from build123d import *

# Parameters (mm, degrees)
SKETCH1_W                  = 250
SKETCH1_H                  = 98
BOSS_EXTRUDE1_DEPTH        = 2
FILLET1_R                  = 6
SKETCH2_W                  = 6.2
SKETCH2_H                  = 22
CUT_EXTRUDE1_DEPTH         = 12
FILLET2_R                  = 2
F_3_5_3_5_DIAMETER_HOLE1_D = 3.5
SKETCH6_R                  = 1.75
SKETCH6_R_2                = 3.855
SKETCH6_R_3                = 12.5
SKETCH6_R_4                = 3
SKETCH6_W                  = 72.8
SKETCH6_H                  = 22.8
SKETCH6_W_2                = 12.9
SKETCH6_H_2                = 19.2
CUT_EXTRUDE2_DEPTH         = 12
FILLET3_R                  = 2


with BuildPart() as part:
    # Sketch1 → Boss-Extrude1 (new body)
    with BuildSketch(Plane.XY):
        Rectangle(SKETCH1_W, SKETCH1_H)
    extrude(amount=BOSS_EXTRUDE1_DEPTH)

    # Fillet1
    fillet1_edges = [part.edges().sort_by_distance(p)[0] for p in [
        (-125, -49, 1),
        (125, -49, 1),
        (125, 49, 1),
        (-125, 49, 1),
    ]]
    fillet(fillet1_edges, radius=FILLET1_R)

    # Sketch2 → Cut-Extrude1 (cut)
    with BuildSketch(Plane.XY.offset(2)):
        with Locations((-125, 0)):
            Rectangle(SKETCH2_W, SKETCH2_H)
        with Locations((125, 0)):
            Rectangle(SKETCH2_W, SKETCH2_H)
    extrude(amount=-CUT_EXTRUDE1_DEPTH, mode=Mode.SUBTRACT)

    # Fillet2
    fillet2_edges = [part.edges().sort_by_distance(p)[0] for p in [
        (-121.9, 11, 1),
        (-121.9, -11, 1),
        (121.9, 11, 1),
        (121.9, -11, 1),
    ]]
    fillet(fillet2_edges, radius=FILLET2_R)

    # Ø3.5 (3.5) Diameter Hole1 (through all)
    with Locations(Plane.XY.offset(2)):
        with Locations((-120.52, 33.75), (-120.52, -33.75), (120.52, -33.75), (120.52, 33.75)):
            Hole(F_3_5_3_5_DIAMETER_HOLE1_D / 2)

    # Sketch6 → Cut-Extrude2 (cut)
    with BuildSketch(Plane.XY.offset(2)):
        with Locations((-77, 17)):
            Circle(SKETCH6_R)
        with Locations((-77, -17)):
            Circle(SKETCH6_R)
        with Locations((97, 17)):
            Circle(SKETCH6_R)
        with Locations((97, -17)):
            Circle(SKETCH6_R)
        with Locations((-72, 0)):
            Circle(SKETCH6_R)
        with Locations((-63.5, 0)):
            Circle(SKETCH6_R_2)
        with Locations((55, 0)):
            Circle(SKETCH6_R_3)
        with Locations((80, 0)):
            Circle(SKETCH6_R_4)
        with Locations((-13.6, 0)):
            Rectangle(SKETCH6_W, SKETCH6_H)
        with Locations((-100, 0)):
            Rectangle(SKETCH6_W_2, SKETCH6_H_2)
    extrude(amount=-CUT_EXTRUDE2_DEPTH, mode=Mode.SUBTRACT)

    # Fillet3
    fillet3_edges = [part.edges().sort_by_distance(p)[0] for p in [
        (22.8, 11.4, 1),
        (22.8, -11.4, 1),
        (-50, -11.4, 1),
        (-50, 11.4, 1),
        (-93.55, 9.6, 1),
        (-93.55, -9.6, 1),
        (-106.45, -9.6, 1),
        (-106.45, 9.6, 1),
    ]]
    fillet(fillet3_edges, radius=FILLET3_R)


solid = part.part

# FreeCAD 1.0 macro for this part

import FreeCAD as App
import Part
import Sketcher


def edges_at(feature, points):
    """Names of the edges that pass closest to the given points."""
    edges = feature.Shape.Edges
    near = lambda p: min(range(len(edges)), key=lambda i: edges[i].distToShape(Part.Vertex(*p))[0])
    return sorted({f"Edge{near(p) + 1}" for p in points})

doc = App.newDocument("Part")
params = doc.addObject("Spreadsheet::Sheet", "Params")
for row, (alias, value) in enumerate([
    ("sketch1_width", "250 mm"),
    ("sketch1_height", "98 mm"),
    ("pad1_length", "2 mm"),
    ("fillet_radius", "6 mm"),
    ("sketch2_height", "22 mm"),
    ("sketch2_width", "6.2 mm"),
    ("pocket1_length", "12 mm"),
    ("fillet2_radius", "2 mm"),
    ("sketch3_diameter", "3.5 mm"),
    ("hole_diameter", "3.5 mm"),
    ("sketch4_diameter", "25 mm"),
    ("sketch4_diameter2", "6 mm"),
    ("sketch4_diameter3", "3.5 mm"),
    ("sketch4_diameter4", "7.71 mm"),
    ("sketch4_width", "72.8 mm"),
    ("pocket2_length", "12 mm"),
    ("fillet3_radius", "2 mm"),
], start=1):
    params.set(f"A{row}", alias)
    params.set(f"B{row}", "=" + value)
    params.setAlias(f"B{row}", alias)

body = doc.addObject("PartDesign::Body", "Body")

sketch1 = body.newObject("Sketcher::SketchObject", "Sketch")
sketch1.AttachmentSupport = (doc.getObject("XY_Plane"), [""])
sketch1.MapMode = "FlatFace"
sketch1.addGeometry(Part.LineSegment(App.Vector(-125, 49, 0), App.Vector(-125, -49, 0)), False)
sketch1.addGeometry(Part.LineSegment(App.Vector(-125, -49, 0), App.Vector(125, -49, 0)), False)
sketch1.addGeometry(Part.LineSegment(App.Vector(125, -49, 0), App.Vector(125, 49, 0)), False)
sketch1.addGeometry(Part.LineSegment(App.Vector(125, 49, 0), App.Vector(-125, 49, 0)), False)
sketch1.addConstraint(Sketcher.Constraint("Coincident", 0, 2, 1, 1))
sketch1.addConstraint(Sketcher.Constraint("Coincident", 1, 2, 2, 1))
sketch1.addConstraint(Sketcher.Constraint("Coincident", 2, 2, 3, 1))
sketch1.addConstraint(Sketcher.Constraint("Coincident", 3, 2, 0, 1))
sketch1.addConstraint(Sketcher.Constraint("Vertical", 0))
sketch1.addConstraint(Sketcher.Constraint("Horizontal", 1))
sketch1.addConstraint(Sketcher.Constraint("Vertical", 2))
sketch1.addConstraint(Sketcher.Constraint("Horizontal", 3))
sketch1.addConstraint(Sketcher.Constraint("Symmetric", 0, 2, 2, 2, -1, 1))
sketch1.addConstraint(Sketcher.Constraint("DistanceX", 1, 1, 1, 2, 250.0))
sketch1.addConstraint(Sketcher.Constraint("DistanceY", 0, 2, 0, 1, 98.0))
sketch1.setExpression("Constraints[9]", "Params.sketch1_width")
sketch1.setExpression("Constraints[10]", "Params.sketch1_height")
pad1 = body.newObject("PartDesign::Pad", "Pad")
pad1.Profile = sketch1
pad1.setExpression("Length", "Params.pad1_length")
doc.recompute()

fillet = body.newObject("PartDesign::Fillet", "Fillet")
fillet.Base = (pad1, edges_at(pad1, [
    (-125, -49, 1),
    (125, -49, 1),
    (125, 49, 1),
    (-125, 49, 1),
]))
fillet.setExpression("Radius", "Params.fillet_radius")

sketch2 = body.newObject("Sketcher::SketchObject", "Sketch001")
sketch2.AttachmentSupport = (doc.getObject("XY_Plane"), [""])
sketch2.MapMode = "FlatFace"
sketch2.AttachmentOffset = App.Placement(App.Vector(0, 0, 2), App.Rotation())
sketch2.addGeometry(Part.LineSegment(App.Vector(-128, 11, 0), App.Vector(-128, -11, 0)), False)
sketch2.addGeometry(Part.LineSegment(App.Vector(-128, -11, 0), App.Vector(-122, -11, 0)), False)
sketch2.addGeometry(Part.LineSegment(App.Vector(-122, -11, 0), App.Vector(-122, 11, 0)), False)
sketch2.addGeometry(Part.LineSegment(App.Vector(-122, 11, 0), App.Vector(-128, 11, 0)), False)
sketch2.addGeometry(Part.LineSegment(App.Vector(122, 11, 0), App.Vector(122, -11, 0)), False)
sketch2.addGeometry(Part.LineSegment(App.Vector(122, -11, 0), App.Vector(128, -11, 0)), False)
sketch2.addGeometry(Part.LineSegment(App.Vector(128, -11, 0), App.Vector(128, 11, 0)), False)
sketch2.addGeometry(Part.LineSegment(App.Vector(128, 11, 0), App.Vector(122, 11, 0)), False)
sketch2.addConstraint(Sketcher.Constraint("Coincident", 0, 2, 1, 1))
sketch2.addConstraint(Sketcher.Constraint("Coincident", 1, 2, 2, 1))
sketch2.addConstraint(Sketcher.Constraint("Coincident", 2, 2, 3, 1))
sketch2.addConstraint(Sketcher.Constraint("Coincident", 3, 2, 0, 1))
sketch2.addConstraint(Sketcher.Constraint("Coincident", 4, 2, 5, 1))
sketch2.addConstraint(Sketcher.Constraint("Coincident", 5, 2, 6, 1))
sketch2.addConstraint(Sketcher.Constraint("Coincident", 6, 2, 7, 1))
sketch2.addConstraint(Sketcher.Constraint("Coincident", 7, 2, 4, 1))
sketch2.addConstraint(Sketcher.Constraint("Vertical", 0))
sketch2.addConstraint(Sketcher.Constraint("Horizontal", 1))
sketch2.addConstraint(Sketcher.Constraint("Vertical", 2))
sketch2.addConstraint(Sketcher.Constraint("Horizontal", 3))
sketch2.addConstraint(Sketcher.Constraint("Vertical", 4))
sketch2.addConstraint(Sketcher.Constraint("Horizontal", 5))
sketch2.addConstraint(Sketcher.Constraint("Vertical", 6))
sketch2.addConstraint(Sketcher.Constraint("Horizontal", 7))
sketch2.addConstraint(Sketcher.Constraint("Symmetric", 2, 2, 4, 2, -1, 1))
sketch2.addConstraint(Sketcher.Constraint("Symmetric", 0, 2, 6, 2, -1, 1))
sketch2.addConstraint(Sketcher.Constraint("Horizontal", 1, 2, 4, 2))
sketch2.addConstraint(Sketcher.Constraint("DistanceY", 0, 2, 0, 1, 22.0))
sketch2.addConstraint(Sketcher.Constraint("DistanceX", 1, 1, 1, 2, 6.2))
sketch2.addConstraint(Sketcher.Constraint("DistanceX", 0, 2, 4, 2, 250.0))
sketch2.setExpression("Constraints[19]", "Params.sketch2_height")
sketch2.setExpression("Constraints[20]", "Params.sketch2_width")
pocket1 = body.newObject("PartDesign::Pocket", "Pocket")
pocket1.Profile = sketch2
pocket1.setExpression("Length", "Params.pocket1_length")
doc.recompute()

fillet2 = body.newObject("PartDesign::Fillet", "Fillet001")
fillet2.Base = (pocket1, edges_at(pocket1, [
    (-121.9, 11, 1),
    (-121.9, -11, 1),
    (121.9, 11, 1),
    (121.9, -11, 1),
]))
fillet2.setExpression("Radius", "Params.fillet2_radius")

sketch3 = body.newObject("Sketcher::SketchObject", "Sketch002")
sketch3.AttachmentSupport = (doc.getObject("XY_Plane"), [""])
sketch3.MapMode = "FlatFace"
sketch3.AttachmentOffset = App.Placement(App.Vector(0, 0, 2), App.Rotation())
sketch3.addGeometry(Part.Circle(App.Vector(-120.5, 33.8, 0), App.Vector(0, 0, 1), 1.8), False)
sketch3.addGeometry(Part.Circle(App.Vector(-120.5, -33.8, 0), App.Vector(0, 0, 1), 1.8), False)
sketch3.addGeometry(Part.Circle(App.Vector(120.5, -33.8, 0), App.Vector(0, 0, 1), 1.8), False)
sketch3.addGeometry(Part.Circle(App.Vector(120.5, 33.8, 0), App.Vector(0, 0, 1), 1.8), False)
sketch3.addConstraint(Sketcher.Constraint("Equal", 0, 1))
sketch3.addConstraint(Sketcher.Constraint("Equal", 1, 2))
sketch3.addConstraint(Sketcher.Constraint("Equal", 2, 3))
sketch3.addConstraint(Sketcher.Constraint("Symmetric", 0, 3, 2, 3, -1, 1))
sketch3.addConstraint(Sketcher.Constraint("Symmetric", 1, 3, 3, 3, -1, 1))
sketch3.addConstraint(Sketcher.Constraint("Symmetric", 1, 3, 2, 3, -2))
sketch3.addConstraint(Sketcher.Constraint("Diameter", 0, 3.5))
sketch3.addConstraint(Sketcher.Constraint("DistanceY", 1, 3, 0, 3, 67.5))
sketch3.addConstraint(Sketcher.Constraint("DistanceX", 0, 3, -1, 1, 120.52))
sketch3.setExpression("Constraints[6]", "Params.sketch3_diameter")
doc.recompute()
hole = body.newObject("PartDesign::Hole", "Hole")
hole.Profile = sketch3
hole.ThreadType = "None"
hole.setExpression("Diameter", "Params.hole_diameter")
hole.DepthType = "ThroughAll"

sketch4 = body.newObject("Sketcher::SketchObject", "Sketch003")
sketch4.AttachmentSupport = (doc.getObject("XY_Plane"), [""])
sketch4.MapMode = "FlatFace"
sketch4.AttachmentOffset = App.Placement(App.Vector(0, 0, 2), App.Rotation())
sketch4.addGeometry(Part.Circle(App.Vector(-77, 17, 0), App.Vector(0, 0, 1), 1.8), False)
sketch4.addGeometry(Part.Circle(App.Vector(-77, -17, 0), App.Vector(0, 0, 1), 1.8), False)
sketch4.addGeometry(Part.Circle(App.Vector(97, 17, 0), App.Vector(0, 0, 1), 1.8), False)
sketch4.addGeometry(Part.Circle(App.Vector(97, -17, 0), App.Vector(0, 0, 1), 1.8), False)
sketch4.addGeometry(Part.Circle(App.Vector(-72, 0, 0), App.Vector(0, 0, 1), 1.8), False)
sketch4.addGeometry(Part.Circle(App.Vector(-63.5, 0, 0), App.Vector(0, 0, 1), 3.9), False)
sketch4.addGeometry(Part.Circle(App.Vector(55, 0, 0), App.Vector(0, 0, 1), 12.5), False)
sketch4.addGeometry(Part.Circle(App.Vector(80, 0, 0), App.Vector(0, 0, 1), 3), False)
sketch4.addGeometry(Part.LineSegment(App.Vector(-50, 11.4, 0), App.Vector(-50, -11.4, 0)), False)
sketch4.addGeometry(Part.LineSegment(App.Vector(-50, -11.4, 0), App.Vector(22.8, -11.4, 0)), False)
sketch4.addGeometry(Part.LineSegment(App.Vector(22.8, -11.4, 0), App.Vector(22.8, 11.4, 0)), False)
sketch4.addGeometry(Part.LineSegment(App.Vector(22.8, 11.4, 0), App.Vector(-50, 11.4, 0)), False)
sketch4.addGeometry(Part.LineSegment(App.Vector(-106.5, 9.6, 0), App.Vector(-106.5, -9.6, 0)), False)
sketch4.addGeometry(Part.LineSegment(App.Vector(-106.5, -9.6, 0), App.Vector(-93.5, -9.6, 0)), False)
sketch4.addGeometry(Part.LineSegment(App.Vector(-93.5, -9.6, 0), App.Vector(-93.5, 9.6, 0)), False)
sketch4.addGeometry(Part.LineSegment(App.Vector(-93.5, 9.6, 0), App.Vector(-106.5, 9.6, 0)), False)
sketch4.addConstraint(Sketcher.Constraint("Coincident", 8, 2, 9, 1))
sketch4.addConstraint(Sketcher.Constraint("Coincident", 9, 2, 10, 1))
sketch4.addConstraint(Sketcher.Constraint("Coincident", 10, 2, 11, 1))
sketch4.addConstraint(Sketcher.Constraint("Coincident", 11, 2, 8, 1))
sketch4.addConstraint(Sketcher.Constraint("Coincident", 12, 2, 13, 1))
sketch4.addConstraint(Sketcher.Constraint("Coincident", 13, 2, 14, 1))
sketch4.addConstraint(Sketcher.Constraint("Coincident", 14, 2, 15, 1))
sketch4.addConstraint(Sketcher.Constraint("Coincident", 15, 2, 12, 1))
sketch4.addConstraint(Sketcher.Constraint("Vertical", 8))
sketch4.addConstraint(Sketcher.Constraint("Horizontal", 9))
sketch4.addConstraint(Sketcher.Constraint("Vertical", 10))
sketch4.addConstraint(Sketcher.Constraint("Horizontal", 11))
sketch4.addConstraint(Sketcher.Constraint("Vertical", 12))
sketch4.addConstraint(Sketcher.Constraint("Horizontal", 13))
sketch4.addConstraint(Sketcher.Constraint("Vertical", 14))
sketch4.addConstraint(Sketcher.Constraint("Horizontal", 15))
sketch4.addConstraint(Sketcher.Constraint("Equal", 0, 1))
sketch4.addConstraint(Sketcher.Constraint("Equal", 1, 2))
sketch4.addConstraint(Sketcher.Constraint("Equal", 2, 3))
sketch4.addConstraint(Sketcher.Constraint("Equal", 3, 4))
sketch4.addConstraint(Sketcher.Constraint("Symmetric", 0, 3, 1, 3, -1))
sketch4.addConstraint(Sketcher.Constraint("Symmetric", 2, 3, 3, 3, -1))
sketch4.addConstraint(Sketcher.Constraint("PointOnObject", 4, 3, -1))
sketch4.addConstraint(Sketcher.Constraint("PointOnObject", 5, 3, -1))
sketch4.addConstraint(Sketcher.Constraint("PointOnObject", 6, 3, -1))
sketch4.addConstraint(Sketcher.Constraint("PointOnObject", 7, 3, -1))
sketch4.addConstraint(Sketcher.Constraint("Horizontal", 0, 3, 2, 3))
sketch4.addConstraint(Sketcher.Constraint("Diameter", 6, 25.0))
sketch4.addConstraint(Sketcher.Constraint("Diameter", 7, 6.0))
sketch4.addConstraint(Sketcher.Constraint("Diameter", 0, 3.5))
sketch4.addConstraint(Sketcher.Constraint("Diameter", 5, 7.71))
sketch4.addConstraint(Sketcher.Constraint("DistanceX", 9, 1, 9, 2, 72.8))
sketch4.addConstraint(Sketcher.Constraint("DistanceX", 13, 1, 13, 2, 12.9))
sketch4.addConstraint(Sketcher.Constraint("DistanceY", 8, 2, 8, 1, 22.8))
sketch4.addConstraint(Sketcher.Constraint("DistanceY", 12, 2, 12, 1, 19.2))
sketch4.addConstraint(Sketcher.Constraint("DistanceX", 0, 3, -1, 1, 77.0))
sketch4.addConstraint(Sketcher.Constraint("DistanceY", -1, 1, 0, 3, 17.0))
sketch4.addConstraint(Sketcher.Constraint("DistanceX", -1, 1, 2, 3, 97.0))
sketch4.addConstraint(Sketcher.Constraint("DistanceX", 4, 3, -1, 1, 72.0))
sketch4.addConstraint(Sketcher.Constraint("DistanceX", -1, 1, 6, 3, 55.0))
sketch4.addConstraint(Sketcher.Constraint("DistanceX", -1, 1, 7, 3, 80.0))
sketch4.addConstraint(Sketcher.Constraint("DistanceX", 8, 2, -1, 1, 50.0))
sketch4.addConstraint(Sketcher.Constraint("DistanceX", 5, 3, -1, 1, 63.5))
sketch4.addConstraint(Sketcher.Constraint("DistanceY", 8, 2, -1, 1, 11.4))
sketch4.addConstraint(Sketcher.Constraint("DistanceY", 12, 2, -1, 1, 9.6))
sketch4.addConstraint(Sketcher.Constraint("DistanceX", 12, 2, -1, 1, 106.45))
sketch4.setExpression("Constraints[27]", "Params.sketch4_diameter")
sketch4.setExpression("Constraints[28]", "Params.sketch4_diameter2")
sketch4.setExpression("Constraints[29]", "Params.sketch4_diameter3")
sketch4.setExpression("Constraints[30]", "Params.sketch4_diameter4")
sketch4.setExpression("Constraints[31]", "Params.sketch4_width")
pocket2 = body.newObject("PartDesign::Pocket", "Pocket001")
pocket2.Profile = sketch4
pocket2.setExpression("Length", "Params.pocket2_length")
doc.recompute()

fillet3 = body.newObject("PartDesign::Fillet", "Fillet002")
fillet3.Base = (pocket2, edges_at(pocket2, [
    (22.8, 11.4, 1),
    (22.8, -11.4, 1),
    (-50, -11.4, 1),
    (-50, 11.4, 1),
    (-93.55, 9.6, 1),
    (-93.55, -9.6, 1),
    (-106.45, -9.6, 1),
    (-106.45, 9.6, 1),
]))
fillet3.setExpression("Radius", "Params.fillet3_radius")

doc.recompute()
